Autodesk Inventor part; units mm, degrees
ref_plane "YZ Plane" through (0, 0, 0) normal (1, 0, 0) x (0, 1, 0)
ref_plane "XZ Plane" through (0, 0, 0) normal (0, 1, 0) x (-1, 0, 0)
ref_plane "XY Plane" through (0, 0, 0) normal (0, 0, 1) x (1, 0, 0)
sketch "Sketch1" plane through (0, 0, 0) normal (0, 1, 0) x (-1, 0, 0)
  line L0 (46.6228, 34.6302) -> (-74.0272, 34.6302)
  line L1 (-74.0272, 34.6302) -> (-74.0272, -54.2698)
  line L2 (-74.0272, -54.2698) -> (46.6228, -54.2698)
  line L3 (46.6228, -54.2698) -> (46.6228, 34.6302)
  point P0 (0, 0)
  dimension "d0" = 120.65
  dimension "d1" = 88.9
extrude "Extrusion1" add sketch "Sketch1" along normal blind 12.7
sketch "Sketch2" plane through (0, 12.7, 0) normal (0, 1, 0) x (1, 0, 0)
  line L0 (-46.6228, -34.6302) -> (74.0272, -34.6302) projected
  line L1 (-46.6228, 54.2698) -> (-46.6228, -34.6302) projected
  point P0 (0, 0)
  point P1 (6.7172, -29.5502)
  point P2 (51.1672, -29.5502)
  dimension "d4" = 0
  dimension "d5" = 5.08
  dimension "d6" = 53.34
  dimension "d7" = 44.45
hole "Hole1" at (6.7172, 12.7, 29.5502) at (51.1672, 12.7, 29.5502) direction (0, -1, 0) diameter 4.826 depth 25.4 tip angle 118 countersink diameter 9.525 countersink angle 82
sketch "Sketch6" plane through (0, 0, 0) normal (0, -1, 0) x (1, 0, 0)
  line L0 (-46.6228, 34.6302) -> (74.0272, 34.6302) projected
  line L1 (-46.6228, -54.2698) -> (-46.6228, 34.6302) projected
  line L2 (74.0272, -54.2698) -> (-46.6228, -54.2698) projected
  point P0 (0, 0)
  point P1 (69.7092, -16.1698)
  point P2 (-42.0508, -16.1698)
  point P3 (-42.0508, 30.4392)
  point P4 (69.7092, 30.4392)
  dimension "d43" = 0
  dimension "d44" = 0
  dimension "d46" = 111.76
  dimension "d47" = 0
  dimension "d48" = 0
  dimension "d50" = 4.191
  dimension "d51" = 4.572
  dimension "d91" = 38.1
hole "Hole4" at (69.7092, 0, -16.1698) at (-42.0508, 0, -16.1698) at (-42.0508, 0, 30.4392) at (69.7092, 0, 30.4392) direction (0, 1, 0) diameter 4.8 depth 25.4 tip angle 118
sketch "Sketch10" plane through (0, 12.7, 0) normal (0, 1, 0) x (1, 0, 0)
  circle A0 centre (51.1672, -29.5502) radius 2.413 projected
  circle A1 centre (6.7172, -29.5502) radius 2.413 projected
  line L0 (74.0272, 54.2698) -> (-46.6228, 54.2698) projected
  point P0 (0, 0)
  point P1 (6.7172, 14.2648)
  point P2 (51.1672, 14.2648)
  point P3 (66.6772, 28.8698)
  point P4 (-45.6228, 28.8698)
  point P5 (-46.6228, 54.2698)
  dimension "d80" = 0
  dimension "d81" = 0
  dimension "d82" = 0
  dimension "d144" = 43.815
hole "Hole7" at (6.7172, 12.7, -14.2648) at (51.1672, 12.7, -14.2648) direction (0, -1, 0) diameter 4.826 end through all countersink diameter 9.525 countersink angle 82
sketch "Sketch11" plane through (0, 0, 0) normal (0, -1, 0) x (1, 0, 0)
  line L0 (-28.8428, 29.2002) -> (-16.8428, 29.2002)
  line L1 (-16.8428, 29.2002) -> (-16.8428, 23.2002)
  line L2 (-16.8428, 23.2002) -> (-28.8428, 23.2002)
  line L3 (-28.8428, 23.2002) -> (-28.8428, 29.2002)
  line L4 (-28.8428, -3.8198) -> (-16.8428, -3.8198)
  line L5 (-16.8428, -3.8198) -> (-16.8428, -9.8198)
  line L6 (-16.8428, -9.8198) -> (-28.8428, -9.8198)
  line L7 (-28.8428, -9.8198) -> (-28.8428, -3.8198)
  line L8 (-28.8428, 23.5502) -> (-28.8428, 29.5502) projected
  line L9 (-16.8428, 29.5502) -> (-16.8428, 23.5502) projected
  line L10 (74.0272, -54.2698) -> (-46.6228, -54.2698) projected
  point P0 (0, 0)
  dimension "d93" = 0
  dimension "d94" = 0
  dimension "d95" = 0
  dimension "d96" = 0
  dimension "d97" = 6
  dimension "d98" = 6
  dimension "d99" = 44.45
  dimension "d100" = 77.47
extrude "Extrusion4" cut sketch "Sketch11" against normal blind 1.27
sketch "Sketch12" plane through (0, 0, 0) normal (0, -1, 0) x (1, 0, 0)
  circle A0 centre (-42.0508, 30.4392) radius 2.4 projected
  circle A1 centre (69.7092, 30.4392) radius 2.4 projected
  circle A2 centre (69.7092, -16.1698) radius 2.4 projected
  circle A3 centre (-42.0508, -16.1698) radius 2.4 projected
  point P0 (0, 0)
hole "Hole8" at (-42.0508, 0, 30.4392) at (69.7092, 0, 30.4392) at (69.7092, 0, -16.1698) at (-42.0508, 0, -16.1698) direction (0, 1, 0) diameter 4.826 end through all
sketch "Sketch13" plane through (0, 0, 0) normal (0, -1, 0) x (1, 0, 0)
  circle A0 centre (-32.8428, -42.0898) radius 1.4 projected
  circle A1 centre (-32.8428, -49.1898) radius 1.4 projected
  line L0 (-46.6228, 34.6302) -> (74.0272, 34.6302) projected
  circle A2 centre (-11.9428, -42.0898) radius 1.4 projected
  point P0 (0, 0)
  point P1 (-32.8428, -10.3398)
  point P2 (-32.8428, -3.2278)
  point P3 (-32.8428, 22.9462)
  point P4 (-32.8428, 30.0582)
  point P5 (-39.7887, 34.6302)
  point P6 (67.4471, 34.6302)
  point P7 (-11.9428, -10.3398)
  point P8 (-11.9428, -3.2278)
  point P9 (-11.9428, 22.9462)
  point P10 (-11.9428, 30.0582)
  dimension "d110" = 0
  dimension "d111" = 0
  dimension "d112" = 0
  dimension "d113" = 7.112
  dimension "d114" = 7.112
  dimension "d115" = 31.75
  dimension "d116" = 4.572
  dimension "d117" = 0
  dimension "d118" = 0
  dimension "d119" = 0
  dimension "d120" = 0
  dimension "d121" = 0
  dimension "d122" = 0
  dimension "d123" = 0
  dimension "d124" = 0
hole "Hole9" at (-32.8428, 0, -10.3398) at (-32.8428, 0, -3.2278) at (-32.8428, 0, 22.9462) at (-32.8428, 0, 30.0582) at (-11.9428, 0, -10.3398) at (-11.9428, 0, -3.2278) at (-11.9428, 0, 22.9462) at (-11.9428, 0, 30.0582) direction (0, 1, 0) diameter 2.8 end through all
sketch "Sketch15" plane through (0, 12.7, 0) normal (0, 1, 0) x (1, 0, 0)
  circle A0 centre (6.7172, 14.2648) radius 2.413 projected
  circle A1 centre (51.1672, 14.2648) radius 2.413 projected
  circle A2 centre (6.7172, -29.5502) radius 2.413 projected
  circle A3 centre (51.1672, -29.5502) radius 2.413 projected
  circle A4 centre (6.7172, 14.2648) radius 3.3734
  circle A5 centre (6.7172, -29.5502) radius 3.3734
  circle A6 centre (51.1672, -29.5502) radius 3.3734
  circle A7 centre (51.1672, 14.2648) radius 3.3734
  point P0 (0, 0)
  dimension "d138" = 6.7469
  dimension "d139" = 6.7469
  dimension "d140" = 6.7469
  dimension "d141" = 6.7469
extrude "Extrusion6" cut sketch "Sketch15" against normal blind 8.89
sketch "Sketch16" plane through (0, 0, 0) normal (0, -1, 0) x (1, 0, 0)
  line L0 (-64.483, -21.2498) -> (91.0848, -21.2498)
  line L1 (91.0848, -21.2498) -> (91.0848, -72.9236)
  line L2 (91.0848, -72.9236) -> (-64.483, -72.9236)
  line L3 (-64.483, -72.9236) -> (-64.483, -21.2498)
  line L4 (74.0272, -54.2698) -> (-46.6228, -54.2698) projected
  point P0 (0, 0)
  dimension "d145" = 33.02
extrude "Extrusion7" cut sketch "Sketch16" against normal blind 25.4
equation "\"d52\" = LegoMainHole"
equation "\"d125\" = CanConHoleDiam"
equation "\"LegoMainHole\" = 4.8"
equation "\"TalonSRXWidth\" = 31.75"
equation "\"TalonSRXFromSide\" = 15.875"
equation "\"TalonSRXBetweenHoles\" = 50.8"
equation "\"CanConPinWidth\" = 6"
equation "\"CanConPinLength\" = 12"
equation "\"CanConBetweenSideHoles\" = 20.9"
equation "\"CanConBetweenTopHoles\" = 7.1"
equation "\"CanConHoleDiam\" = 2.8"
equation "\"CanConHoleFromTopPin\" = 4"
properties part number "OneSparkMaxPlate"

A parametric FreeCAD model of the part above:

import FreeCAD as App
import Part
import Sketcher
from FreeCAD import Vector
Q = App.Units.Quantity

doc = App.newDocument("Part")
body = doc.addObject("PartDesign::Body", "Body")

# Sketch on XZ plane
sketch1 = doc.addObject("Sketcher::SketchObject", "Sketch")
body.addObject(sketch1)
sketch1.AttachmentSupport = (doc.XZ_Plane, [""])
sketch1.MapMode = "FlatFace"
sketch1.addGeometry([
    Part.LineSegment(Vector(-47, -54, 0), Vector(-47, 35, 0)),
    Part.LineSegment(Vector(-47, 35, 0), Vector(74, 35, 0)),
    Part.LineSegment(Vector(74, 35, 0), Vector(74, -54, 0)),
    Part.LineSegment(Vector(74, -54, 0), Vector(-47, -54, 0)),
], False)
sketch1.addConstraint([
    Sketcher.Constraint("Coincident", 0, 2, 1, 1),
    Sketcher.Constraint("Coincident", 1, 2, 2, 1),
    Sketcher.Constraint("Coincident", 2, 2, 3, 1),
    Sketcher.Constraint("Coincident", 3, 2, 0, 1),
    Sketcher.Constraint("Vertical", 0),
    Sketcher.Constraint("Horizontal", 1),
    Sketcher.Constraint("Vertical", 2),
    Sketcher.Constraint("Horizontal", 3),
    Sketcher.Constraint("DistanceY", 0, 1, 0, 2, Q("3.5 in")),
    Sketcher.Constraint("DistanceX", 1, 1, 1, 2, Q("4.75 in")),
    Sketcher.Constraint("DistanceY", -1, 1, 0, 2, Q("1.3634 in")),
    Sketcher.Constraint("DistanceX", 0, 2, -1, 1, Q("46.6228 mm")),
])
pad1 = doc.addObject("PartDesign::Pad", "Pad")
body.addObject(pad1)
pad1.Profile = sketch1
pad1.Length = Q("0.5 in")
pad1.Reversed = True

# Sketch on XZ plane
sketch2 = doc.addObject("Sketcher::SketchObject", "Sketch001")
body.addObject(sketch2)
sketch2.AttachmentSupport = (doc.XZ_Plane, [""])
sketch2.MapMode = "FlatFace"
sketch2.AttachmentOffset = App.Placement(Vector(0, 0, -0.5 * 25.4), App.Rotation())
sketch2.addGeometry([
    Part.Circle(Vector(6.7, 29.6, 0), Vector(0, 0, 1), 2.4),
    Part.Circle(Vector(51.2, 29.6, 0), Vector(0, 0, 1), 2.4),
], False)
sketch2.addConstraint([
    Sketcher.Constraint("Equal", 0, 1),
    Sketcher.Constraint("Horizontal", 0, 3, 1, 3),
    Sketcher.Constraint("Diameter", 0, Q("0.19 in")),
    Sketcher.Constraint("DistanceX", 0, 3, 1, 3, Q("1.75 in")),
    Sketcher.Constraint("DistanceY", -1, 1, 0, 3, Q("1.1634 in")),
    Sketcher.Constraint("DistanceX", -1, 1, 0, 3, Q("6.7172 mm")),
])
doc.recompute()
hole = doc.addObject("PartDesign::Hole", "Hole")
body.addObject(hole)
hole.Profile = sketch2
hole.ThreadType = "None"
hole.Diameter = Q("0.19 in")
hole.DepthType = "Dimension"
hole.Depth = Q("1 in")
hole.DrillPoint = "Angled"
hole.DrillPointAngle = 118
hole.HoleCutType = "Countersink"
hole.HoleCutDiameter = Q("0.375 in")
hole.HoleCutCountersinkAngle = 82
hole.Reversed = True

# Sketch on XZ plane
sketch3 = doc.addObject("Sketcher::SketchObject", "Sketch002")
body.addObject(sketch3)
sketch3.AttachmentSupport = (doc.XZ_Plane, [""])
sketch3.MapMode = "FlatFace"
sketch3.addGeometry([
    Part.Circle(Vector(69.7, -16.2, 0), Vector(0, 0, 1), 2.4),
    Part.Circle(Vector(-42.1, -16.2, 0), Vector(0, 0, 1), 2.4),
    Part.Circle(Vector(-42.1, 30.4, 0), Vector(0, 0, 1), 2.4),
    Part.Circle(Vector(69.7, 30.4, 0), Vector(0, 0, 1), 2.4),
], False)
sketch3.addConstraint([
    Sketcher.Constraint("Equal", 0, 1),
    Sketcher.Constraint("Equal", 1, 2),
    Sketcher.Constraint("Equal", 2, 3),
    Sketcher.Constraint("Horizontal", 0, 3, 1, 3),
    Sketcher.Constraint("Horizontal", 2, 3, 3, 3),
    Sketcher.Constraint("Vertical", 1, 3, 2, 3),
    Sketcher.Constraint("Vertical", 0, 3, 3, 3),
    Sketcher.Constraint("DistanceX", 1, 3, 0, 3, Q("4.4 in")),
    Sketcher.Constraint("Diameter", 0, Q("4.8 mm")),
    Sketcher.Constraint("DistanceY", 1, 3, 2, 3, Q("1.835 in")),
    Sketcher.Constraint("DistanceY", 0, 3, -1, 1, Q("0.6366 in")),
    Sketcher.Constraint("DistanceX", -1, 1, 0, 3, Q("69.7092 mm")),
])
doc.recompute()
hole2 = doc.addObject("PartDesign::Hole", "Hole001")
body.addObject(hole2)
hole2.Profile = sketch3
hole2.ThreadType = "None"
hole2.Diameter = 4.8
hole2.DepthType = "Dimension"
hole2.Depth = Q("1 in")
hole2.DrillPoint = "Angled"
hole2.DrillPointAngle = 118

# Sketch on XZ plane
sketch4 = doc.addObject("Sketcher::SketchObject", "Sketch003")
body.addObject(sketch4)
sketch4.AttachmentSupport = (doc.XZ_Plane, [""])
sketch4.MapMode = "FlatFace"
sketch4.AttachmentOffset = App.Placement(Vector(0, 0, -0.5 * 25.4), App.Rotation())
sketch4.addGeometry([
    Part.Circle(Vector(6.7, -14.3, 0), Vector(0, 0, 1), 2.4),
    Part.Circle(Vector(51.2, -14.3, 0), Vector(0, 0, 1), 2.4),
], False)
sketch4.addConstraint([
    Sketcher.Constraint("Equal", 0, 1),
    Sketcher.Constraint("Horizontal", 0, 3, 1, 3),
    Sketcher.Constraint("Diameter", 0, Q("0.19 in")),
    Sketcher.Constraint("DistanceX", 0, 3, 1, 3, Q("1.75 in")),
    Sketcher.Constraint("DistanceY", 0, 3, -1, 1, Q("0.5616 in")),
    Sketcher.Constraint("DistanceX", -1, 1, 0, 3, Q("6.7172 mm")),
])
doc.recompute()
hole3 = doc.addObject("PartDesign::Hole", "Hole002")
body.addObject(hole3)
hole3.Profile = sketch4
hole3.ThreadType = "None"
hole3.Diameter = Q("0.19 in")
hole3.DepthType = "ThroughAll"
hole3.HoleCutType = "Countersink"
hole3.HoleCutDiameter = Q("0.375 in")
hole3.HoleCutCountersinkAngle = 82
hole3.Reversed = True

# Sketch on XZ plane
sketch5 = doc.addObject("Sketcher::SketchObject", "Sketch004")
body.addObject(sketch5)
sketch5.AttachmentSupport = (doc.XZ_Plane, [""])
sketch5.MapMode = "FlatFace"
sketch5.addGeometry([
    Part.LineSegment(Vector(-17, 29, 0), Vector(-29, 29, 0)),  # 0
    Part.LineSegment(Vector(-29, 29, 0), Vector(-29, 23, 0)),  # 1
    Part.LineSegment(Vector(-29, 23, 0), Vector(-17, 23, 0)),  # 2
    Part.LineSegment(Vector(-17, 23, 0), Vector(-17, 29, 0)),  # 3
    Part.LineSegment(Vector(-17, -4, 0), Vector(-29, -4, 0)),  # 4
    Part.LineSegment(Vector(-29, -4, 0), Vector(-29, -10, 0)),  # 5
    Part.LineSegment(Vector(-29, -10, 0), Vector(-17, -10, 0)),  # 6
    Part.LineSegment(Vector(-17, -10, 0), Vector(-17, -4, 0)),  # 7
], False)
sketch5.addConstraint([
    Sketcher.Constraint("Coincident", 0, 2, 1, 1),
    Sketcher.Constraint("Coincident", 1, 2, 2, 1),
    Sketcher.Constraint("Coincident", 2, 2, 3, 1),
    Sketcher.Constraint("Coincident", 3, 2, 0, 1),
    Sketcher.Constraint("Coincident", 4, 2, 5, 1),
    Sketcher.Constraint("Coincident", 5, 2, 6, 1),
    Sketcher.Constraint("Coincident", 6, 2, 7, 1),
    Sketcher.Constraint("Coincident", 7, 2, 4, 1),
    Sketcher.Constraint("Horizontal", 0),
    Sketcher.Constraint("Vertical", 1),
    Sketcher.Constraint("Horizontal", 2),
    Sketcher.Constraint("Vertical", 3),
    Sketcher.Constraint("Horizontal", 4),
    Sketcher.Constraint("Vertical", 5),
    Sketcher.Constraint("Horizontal", 6),
    Sketcher.Constraint("Vertical", 7),
    Sketcher.Constraint("Vertical", 1, 2, 4, 2),
    Sketcher.Constraint("Vertical", 3, 2, 6, 2),
    Sketcher.Constraint("Equal", 3, 5),
    Sketcher.Constraint("DistanceY", 1, 2, 1, 1, Q("6 mm")),
    Sketcher.Constraint("DistanceY", 4, 2, 0, 2, Q("1.3 in")),
    Sketcher.Constraint("DistanceX", 0, 2, 0, 1, Q("12 mm")),
    Sketcher.Constraint("DistanceY", -1, 1, 1, 2, Q("0.9134 in")),
    Sketcher.Constraint("DistanceX", 2, 2, -1, 1, Q("0.6631 in")),
])
pocket1 = doc.addObject("PartDesign::Pocket", "Pocket")
body.addObject(pocket1)
pocket1.Profile = sketch5
pocket1.Length = Q("0.05 in")

# Sketch on XZ plane
sketch6 = doc.addObject("Sketcher::SketchObject", "Sketch005")
body.addObject(sketch6)
sketch6.AttachmentSupport = (doc.XZ_Plane, [""])
sketch6.MapMode = "FlatFace"
sketch6.addGeometry([
    Part.Circle(Vector(-42.1, 30.4, 0), Vector(0, 0, 1), 2.4),
    Part.Circle(Vector(69.7, 30.4, 0), Vector(0, 0, 1), 2.4),
    Part.Circle(Vector(69.7, -16.2, 0), Vector(0, 0, 1), 2.4),
    Part.Circle(Vector(-42.1, -16.2, 0), Vector(0, 0, 1), 2.4),
], False)
sketch6.addConstraint([
    Sketcher.Constraint("Equal", 0, 1),
    Sketcher.Constraint("Equal", 1, 2),
    Sketcher.Constraint("Equal", 2, 3),
    Sketcher.Constraint("Horizontal", 0, 3, 1, 3),
    Sketcher.Constraint("Horizontal", 2, 3, 3, 3),
    Sketcher.Constraint("Vertical", 1, 3, 2, 3),
    Sketcher.Constraint("Vertical", 0, 3, 3, 3),
    Sketcher.Constraint("Diameter", 0, Q("0.19 in")),
    Sketcher.Constraint("DistanceX", 0, 3, 1, 3, Q("4.4 in")),
    Sketcher.Constraint("DistanceY", 2, 3, 1, 3, Q("1.835 in")),
    Sketcher.Constraint("DistanceY", -1, 1, 0, 3, Q("1.1984 in")),
    Sketcher.Constraint("DistanceX", 0, 3, -1, 1, Q("42.0508 mm")),
])
doc.recompute()
hole4 = doc.addObject("PartDesign::Hole", "Hole003")
body.addObject(hole4)
hole4.Profile = sketch6
hole4.ThreadType = "None"
hole4.Diameter = Q("0.19 in")
hole4.DepthType = "ThroughAll"

# Sketch on XZ plane
sketch7 = doc.addObject("Sketcher::SketchObject", "Sketch006")
body.addObject(sketch7)
sketch7.AttachmentSupport = (doc.XZ_Plane, [""])
sketch7.MapMode = "FlatFace"
sketch7.addGeometry([
    Part.Circle(Vector(-32.8, -10.3, 0), Vector(0, 0, 1), 1.4),  # 0
    Part.Circle(Vector(-32.8, -3.2, 0), Vector(0, 0, 1), 1.4),  # 1
    Part.Circle(Vector(-32.8, 22.9, 0), Vector(0, 0, 1), 1.4),  # 2
    Part.Circle(Vector(-32.8, 30.1, 0), Vector(0, 0, 1), 1.4),  # 3
    Part.Circle(Vector(-11.9, -10.3, 0), Vector(0, 0, 1), 1.4),  # 4
    Part.Circle(Vector(-11.9, -3.2, 0), Vector(0, 0, 1), 1.4),  # 5
    Part.Circle(Vector(-11.9, 22.9, 0), Vector(0, 0, 1), 1.4),  # 6
    Part.Circle(Vector(-11.9, 30.1, 0), Vector(0, 0, 1), 1.4),  # 7
], False)
sketch7.addConstraint([
    Sketcher.Constraint("Equal", 0, 1),
    Sketcher.Constraint("Equal", 1, 2),
    Sketcher.Constraint("Equal", 2, 3),
    Sketcher.Constraint("Equal", 3, 4),
    Sketcher.Constraint("Equal", 4, 5),
    Sketcher.Constraint("Equal", 5, 6),
    Sketcher.Constraint("Equal", 6, 7),
    Sketcher.Constraint("Horizontal", 0, 3, 4, 3),
    Sketcher.Constraint("Horizontal", 1, 3, 5, 3),
    Sketcher.Constraint("Horizontal", 2, 3, 6, 3),
    Sketcher.Constraint("Horizontal", 3, 3, 7, 3),
    Sketcher.Constraint("Vertical", 0, 3, 1, 3),
    Sketcher.Constraint("Vertical", 1, 3, 2, 3),
    Sketcher.Constraint("Vertical", 2, 3, 3, 3),
    Sketcher.Constraint("Vertical", 4, 3, 5, 3),
    Sketcher.Constraint("Vertical", 5, 3, 6, 3),
    Sketcher.Constraint("Vertical", 6, 3, 7, 3),
    Sketcher.Constraint("Diameter", 0, Q("2.8 mm")),
    Sketcher.Constraint("DistanceY", 0, 3, 1, 3, Q("0.28 in")),
    Sketcher.Constraint("DistanceY", 2, 3, 3, 3, Q("0.28 in")),
    Sketcher.Constraint("DistanceY", -1, 1, 2, 3, Q("0.9034 in")),
    Sketcher.Constraint("DistanceX", 4, 3, -1, 1, Q("0.4702 in")),
    Sketcher.Constraint("DistanceX", 0, 3, -1, 1, Q("32.8428 mm")),
    Sketcher.Constraint("DistanceY", 0, 3, -1, 1, Q("10.3398 mm")),
])
doc.recompute()
hole5 = doc.addObject("PartDesign::Hole", "Hole004")
body.addObject(hole5)
hole5.Profile = sketch7
hole5.ThreadType = "None"
hole5.Diameter = 2.8
hole5.DepthType = "ThroughAll"

# Sketch on XZ plane
sketch8 = doc.addObject("Sketcher::SketchObject", "Sketch007")
body.addObject(sketch8)
sketch8.AttachmentSupport = (doc.XZ_Plane, [""])
sketch8.MapMode = "FlatFace"
sketch8.AttachmentOffset = App.Placement(Vector(0, 0, -0.5 * 25.4), App.Rotation())
sketch8.addGeometry([
    Part.Circle(Vector(6.7, -14.3, 0), Vector(0, 0, 1), 3.4),  # 0
    Part.Circle(Vector(6.7, -14.3, 0), Vector(0, 0, 1), 2.4),  # 1
    Part.Circle(Vector(6.7, 29.6, 0), Vector(0, 0, 1), 3.4),  # 2
    Part.Circle(Vector(6.7, 29.6, 0), Vector(0, 0, 1), 2.4),  # 3
    Part.Circle(Vector(51.2, 29.6, 0), Vector(0, 0, 1), 3.4),  # 4
    Part.Circle(Vector(51.2, 29.6, 0), Vector(0, 0, 1), 2.4),  # 5
    Part.Circle(Vector(51.2, -14.3, 0), Vector(0, 0, 1), 3.4),  # 6
    Part.Circle(Vector(51.2, -14.3, 0), Vector(0, 0, 1), 2.4),  # 7
], False)
sketch8.addConstraint([
    Sketcher.Constraint("Coincident", 1, 3, 0, 3),
    Sketcher.Constraint("Coincident", 3, 3, 2, 3),
    Sketcher.Constraint("Coincident", 5, 3, 4, 3),
    Sketcher.Constraint("Coincident", 7, 3, 6, 3),
    Sketcher.Constraint("Equal", 0, 2),
    Sketcher.Constraint("Equal", 1, 3),
    Sketcher.Constraint("Equal", 2, 4),
    Sketcher.Constraint("Equal", 3, 5),
    Sketcher.Constraint("Equal", 4, 6),
    Sketcher.Constraint("Equal", 5, 7),
    Sketcher.Constraint("Horizontal", 3, 3, 4, 3),
    Sketcher.Constraint("Horizontal", 1, 3, 6, 3),
    Sketcher.Constraint("Vertical", 1, 3, 2, 3),
    Sketcher.Constraint("Vertical", 5, 3, 6, 3),
    Sketcher.Constraint("Diameter", 0, Q("0.265622 in")),
    Sketcher.Constraint("Diameter", 1, Q("0.19 in")),
    Sketcher.Constraint("DistanceX", 2, 3, 4, 3, Q("1.75 in")),
    Sketcher.Constraint("DistanceY", 0, 3, 2, 3, Q("1.725 in")),
    Sketcher.Constraint("DistanceY", 0, 3, -1, 1, Q("0.5616 in")),
    Sketcher.Constraint("DistanceX", -1, 1, 0, 3, Q("6.7172 mm")),
])
pocket2 = doc.addObject("PartDesign::Pocket", "Pocket001")
body.addObject(pocket2)
pocket2.Profile = sketch8
pocket2.Length = Q("0.35 in")
pocket2.Reversed = True

# Sketch on XZ plane
sketch9 = doc.addObject("Sketcher::SketchObject", "Sketch008")
body.addObject(sketch9)
sketch9.AttachmentSupport = (doc.XZ_Plane, [""])
sketch9.MapMode = "FlatFace"
sketch9.addGeometry([
    Part.LineSegment(Vector(91, -21, 0), Vector(-64, -21, 0)),
    Part.LineSegment(Vector(-64, -21, 0), Vector(-64, -73, 0)),
    Part.LineSegment(Vector(-64, -73, 0), Vector(91, -73, 0)),
    Part.LineSegment(Vector(91, -73, 0), Vector(91, -21, 0)),
], False)
sketch9.addConstraint([
    Sketcher.Constraint("Coincident", 0, 2, 1, 1),
    Sketcher.Constraint("Coincident", 1, 2, 2, 1),
    Sketcher.Constraint("Coincident", 2, 2, 3, 1),
    Sketcher.Constraint("Coincident", 3, 2, 0, 1),
    Sketcher.Constraint("Horizontal", 0),
    Sketcher.Constraint("Vertical", 1),
    Sketcher.Constraint("Horizontal", 2),
    Sketcher.Constraint("Vertical", 3),
    Sketcher.Constraint("DistanceY", 1, 2, 1, 1, Q("2.0344 in")),
    Sketcher.Constraint("DistanceY", 1, 2, -1, 1, Q("2.871 in")),
    Sketcher.Constraint("DistanceX", 0, 2, 0, 1, Q("155.5678 mm")),
    Sketcher.Constraint("DistanceX", 0, 2, -1, 1, Q("2.5387 in")),
])
pocket3 = doc.addObject("PartDesign::Pocket", "Pocket002")
body.addObject(pocket3)
pocket3.Profile = sketch9
pocket3.Length = Q("1 in")

doc.recompute()
